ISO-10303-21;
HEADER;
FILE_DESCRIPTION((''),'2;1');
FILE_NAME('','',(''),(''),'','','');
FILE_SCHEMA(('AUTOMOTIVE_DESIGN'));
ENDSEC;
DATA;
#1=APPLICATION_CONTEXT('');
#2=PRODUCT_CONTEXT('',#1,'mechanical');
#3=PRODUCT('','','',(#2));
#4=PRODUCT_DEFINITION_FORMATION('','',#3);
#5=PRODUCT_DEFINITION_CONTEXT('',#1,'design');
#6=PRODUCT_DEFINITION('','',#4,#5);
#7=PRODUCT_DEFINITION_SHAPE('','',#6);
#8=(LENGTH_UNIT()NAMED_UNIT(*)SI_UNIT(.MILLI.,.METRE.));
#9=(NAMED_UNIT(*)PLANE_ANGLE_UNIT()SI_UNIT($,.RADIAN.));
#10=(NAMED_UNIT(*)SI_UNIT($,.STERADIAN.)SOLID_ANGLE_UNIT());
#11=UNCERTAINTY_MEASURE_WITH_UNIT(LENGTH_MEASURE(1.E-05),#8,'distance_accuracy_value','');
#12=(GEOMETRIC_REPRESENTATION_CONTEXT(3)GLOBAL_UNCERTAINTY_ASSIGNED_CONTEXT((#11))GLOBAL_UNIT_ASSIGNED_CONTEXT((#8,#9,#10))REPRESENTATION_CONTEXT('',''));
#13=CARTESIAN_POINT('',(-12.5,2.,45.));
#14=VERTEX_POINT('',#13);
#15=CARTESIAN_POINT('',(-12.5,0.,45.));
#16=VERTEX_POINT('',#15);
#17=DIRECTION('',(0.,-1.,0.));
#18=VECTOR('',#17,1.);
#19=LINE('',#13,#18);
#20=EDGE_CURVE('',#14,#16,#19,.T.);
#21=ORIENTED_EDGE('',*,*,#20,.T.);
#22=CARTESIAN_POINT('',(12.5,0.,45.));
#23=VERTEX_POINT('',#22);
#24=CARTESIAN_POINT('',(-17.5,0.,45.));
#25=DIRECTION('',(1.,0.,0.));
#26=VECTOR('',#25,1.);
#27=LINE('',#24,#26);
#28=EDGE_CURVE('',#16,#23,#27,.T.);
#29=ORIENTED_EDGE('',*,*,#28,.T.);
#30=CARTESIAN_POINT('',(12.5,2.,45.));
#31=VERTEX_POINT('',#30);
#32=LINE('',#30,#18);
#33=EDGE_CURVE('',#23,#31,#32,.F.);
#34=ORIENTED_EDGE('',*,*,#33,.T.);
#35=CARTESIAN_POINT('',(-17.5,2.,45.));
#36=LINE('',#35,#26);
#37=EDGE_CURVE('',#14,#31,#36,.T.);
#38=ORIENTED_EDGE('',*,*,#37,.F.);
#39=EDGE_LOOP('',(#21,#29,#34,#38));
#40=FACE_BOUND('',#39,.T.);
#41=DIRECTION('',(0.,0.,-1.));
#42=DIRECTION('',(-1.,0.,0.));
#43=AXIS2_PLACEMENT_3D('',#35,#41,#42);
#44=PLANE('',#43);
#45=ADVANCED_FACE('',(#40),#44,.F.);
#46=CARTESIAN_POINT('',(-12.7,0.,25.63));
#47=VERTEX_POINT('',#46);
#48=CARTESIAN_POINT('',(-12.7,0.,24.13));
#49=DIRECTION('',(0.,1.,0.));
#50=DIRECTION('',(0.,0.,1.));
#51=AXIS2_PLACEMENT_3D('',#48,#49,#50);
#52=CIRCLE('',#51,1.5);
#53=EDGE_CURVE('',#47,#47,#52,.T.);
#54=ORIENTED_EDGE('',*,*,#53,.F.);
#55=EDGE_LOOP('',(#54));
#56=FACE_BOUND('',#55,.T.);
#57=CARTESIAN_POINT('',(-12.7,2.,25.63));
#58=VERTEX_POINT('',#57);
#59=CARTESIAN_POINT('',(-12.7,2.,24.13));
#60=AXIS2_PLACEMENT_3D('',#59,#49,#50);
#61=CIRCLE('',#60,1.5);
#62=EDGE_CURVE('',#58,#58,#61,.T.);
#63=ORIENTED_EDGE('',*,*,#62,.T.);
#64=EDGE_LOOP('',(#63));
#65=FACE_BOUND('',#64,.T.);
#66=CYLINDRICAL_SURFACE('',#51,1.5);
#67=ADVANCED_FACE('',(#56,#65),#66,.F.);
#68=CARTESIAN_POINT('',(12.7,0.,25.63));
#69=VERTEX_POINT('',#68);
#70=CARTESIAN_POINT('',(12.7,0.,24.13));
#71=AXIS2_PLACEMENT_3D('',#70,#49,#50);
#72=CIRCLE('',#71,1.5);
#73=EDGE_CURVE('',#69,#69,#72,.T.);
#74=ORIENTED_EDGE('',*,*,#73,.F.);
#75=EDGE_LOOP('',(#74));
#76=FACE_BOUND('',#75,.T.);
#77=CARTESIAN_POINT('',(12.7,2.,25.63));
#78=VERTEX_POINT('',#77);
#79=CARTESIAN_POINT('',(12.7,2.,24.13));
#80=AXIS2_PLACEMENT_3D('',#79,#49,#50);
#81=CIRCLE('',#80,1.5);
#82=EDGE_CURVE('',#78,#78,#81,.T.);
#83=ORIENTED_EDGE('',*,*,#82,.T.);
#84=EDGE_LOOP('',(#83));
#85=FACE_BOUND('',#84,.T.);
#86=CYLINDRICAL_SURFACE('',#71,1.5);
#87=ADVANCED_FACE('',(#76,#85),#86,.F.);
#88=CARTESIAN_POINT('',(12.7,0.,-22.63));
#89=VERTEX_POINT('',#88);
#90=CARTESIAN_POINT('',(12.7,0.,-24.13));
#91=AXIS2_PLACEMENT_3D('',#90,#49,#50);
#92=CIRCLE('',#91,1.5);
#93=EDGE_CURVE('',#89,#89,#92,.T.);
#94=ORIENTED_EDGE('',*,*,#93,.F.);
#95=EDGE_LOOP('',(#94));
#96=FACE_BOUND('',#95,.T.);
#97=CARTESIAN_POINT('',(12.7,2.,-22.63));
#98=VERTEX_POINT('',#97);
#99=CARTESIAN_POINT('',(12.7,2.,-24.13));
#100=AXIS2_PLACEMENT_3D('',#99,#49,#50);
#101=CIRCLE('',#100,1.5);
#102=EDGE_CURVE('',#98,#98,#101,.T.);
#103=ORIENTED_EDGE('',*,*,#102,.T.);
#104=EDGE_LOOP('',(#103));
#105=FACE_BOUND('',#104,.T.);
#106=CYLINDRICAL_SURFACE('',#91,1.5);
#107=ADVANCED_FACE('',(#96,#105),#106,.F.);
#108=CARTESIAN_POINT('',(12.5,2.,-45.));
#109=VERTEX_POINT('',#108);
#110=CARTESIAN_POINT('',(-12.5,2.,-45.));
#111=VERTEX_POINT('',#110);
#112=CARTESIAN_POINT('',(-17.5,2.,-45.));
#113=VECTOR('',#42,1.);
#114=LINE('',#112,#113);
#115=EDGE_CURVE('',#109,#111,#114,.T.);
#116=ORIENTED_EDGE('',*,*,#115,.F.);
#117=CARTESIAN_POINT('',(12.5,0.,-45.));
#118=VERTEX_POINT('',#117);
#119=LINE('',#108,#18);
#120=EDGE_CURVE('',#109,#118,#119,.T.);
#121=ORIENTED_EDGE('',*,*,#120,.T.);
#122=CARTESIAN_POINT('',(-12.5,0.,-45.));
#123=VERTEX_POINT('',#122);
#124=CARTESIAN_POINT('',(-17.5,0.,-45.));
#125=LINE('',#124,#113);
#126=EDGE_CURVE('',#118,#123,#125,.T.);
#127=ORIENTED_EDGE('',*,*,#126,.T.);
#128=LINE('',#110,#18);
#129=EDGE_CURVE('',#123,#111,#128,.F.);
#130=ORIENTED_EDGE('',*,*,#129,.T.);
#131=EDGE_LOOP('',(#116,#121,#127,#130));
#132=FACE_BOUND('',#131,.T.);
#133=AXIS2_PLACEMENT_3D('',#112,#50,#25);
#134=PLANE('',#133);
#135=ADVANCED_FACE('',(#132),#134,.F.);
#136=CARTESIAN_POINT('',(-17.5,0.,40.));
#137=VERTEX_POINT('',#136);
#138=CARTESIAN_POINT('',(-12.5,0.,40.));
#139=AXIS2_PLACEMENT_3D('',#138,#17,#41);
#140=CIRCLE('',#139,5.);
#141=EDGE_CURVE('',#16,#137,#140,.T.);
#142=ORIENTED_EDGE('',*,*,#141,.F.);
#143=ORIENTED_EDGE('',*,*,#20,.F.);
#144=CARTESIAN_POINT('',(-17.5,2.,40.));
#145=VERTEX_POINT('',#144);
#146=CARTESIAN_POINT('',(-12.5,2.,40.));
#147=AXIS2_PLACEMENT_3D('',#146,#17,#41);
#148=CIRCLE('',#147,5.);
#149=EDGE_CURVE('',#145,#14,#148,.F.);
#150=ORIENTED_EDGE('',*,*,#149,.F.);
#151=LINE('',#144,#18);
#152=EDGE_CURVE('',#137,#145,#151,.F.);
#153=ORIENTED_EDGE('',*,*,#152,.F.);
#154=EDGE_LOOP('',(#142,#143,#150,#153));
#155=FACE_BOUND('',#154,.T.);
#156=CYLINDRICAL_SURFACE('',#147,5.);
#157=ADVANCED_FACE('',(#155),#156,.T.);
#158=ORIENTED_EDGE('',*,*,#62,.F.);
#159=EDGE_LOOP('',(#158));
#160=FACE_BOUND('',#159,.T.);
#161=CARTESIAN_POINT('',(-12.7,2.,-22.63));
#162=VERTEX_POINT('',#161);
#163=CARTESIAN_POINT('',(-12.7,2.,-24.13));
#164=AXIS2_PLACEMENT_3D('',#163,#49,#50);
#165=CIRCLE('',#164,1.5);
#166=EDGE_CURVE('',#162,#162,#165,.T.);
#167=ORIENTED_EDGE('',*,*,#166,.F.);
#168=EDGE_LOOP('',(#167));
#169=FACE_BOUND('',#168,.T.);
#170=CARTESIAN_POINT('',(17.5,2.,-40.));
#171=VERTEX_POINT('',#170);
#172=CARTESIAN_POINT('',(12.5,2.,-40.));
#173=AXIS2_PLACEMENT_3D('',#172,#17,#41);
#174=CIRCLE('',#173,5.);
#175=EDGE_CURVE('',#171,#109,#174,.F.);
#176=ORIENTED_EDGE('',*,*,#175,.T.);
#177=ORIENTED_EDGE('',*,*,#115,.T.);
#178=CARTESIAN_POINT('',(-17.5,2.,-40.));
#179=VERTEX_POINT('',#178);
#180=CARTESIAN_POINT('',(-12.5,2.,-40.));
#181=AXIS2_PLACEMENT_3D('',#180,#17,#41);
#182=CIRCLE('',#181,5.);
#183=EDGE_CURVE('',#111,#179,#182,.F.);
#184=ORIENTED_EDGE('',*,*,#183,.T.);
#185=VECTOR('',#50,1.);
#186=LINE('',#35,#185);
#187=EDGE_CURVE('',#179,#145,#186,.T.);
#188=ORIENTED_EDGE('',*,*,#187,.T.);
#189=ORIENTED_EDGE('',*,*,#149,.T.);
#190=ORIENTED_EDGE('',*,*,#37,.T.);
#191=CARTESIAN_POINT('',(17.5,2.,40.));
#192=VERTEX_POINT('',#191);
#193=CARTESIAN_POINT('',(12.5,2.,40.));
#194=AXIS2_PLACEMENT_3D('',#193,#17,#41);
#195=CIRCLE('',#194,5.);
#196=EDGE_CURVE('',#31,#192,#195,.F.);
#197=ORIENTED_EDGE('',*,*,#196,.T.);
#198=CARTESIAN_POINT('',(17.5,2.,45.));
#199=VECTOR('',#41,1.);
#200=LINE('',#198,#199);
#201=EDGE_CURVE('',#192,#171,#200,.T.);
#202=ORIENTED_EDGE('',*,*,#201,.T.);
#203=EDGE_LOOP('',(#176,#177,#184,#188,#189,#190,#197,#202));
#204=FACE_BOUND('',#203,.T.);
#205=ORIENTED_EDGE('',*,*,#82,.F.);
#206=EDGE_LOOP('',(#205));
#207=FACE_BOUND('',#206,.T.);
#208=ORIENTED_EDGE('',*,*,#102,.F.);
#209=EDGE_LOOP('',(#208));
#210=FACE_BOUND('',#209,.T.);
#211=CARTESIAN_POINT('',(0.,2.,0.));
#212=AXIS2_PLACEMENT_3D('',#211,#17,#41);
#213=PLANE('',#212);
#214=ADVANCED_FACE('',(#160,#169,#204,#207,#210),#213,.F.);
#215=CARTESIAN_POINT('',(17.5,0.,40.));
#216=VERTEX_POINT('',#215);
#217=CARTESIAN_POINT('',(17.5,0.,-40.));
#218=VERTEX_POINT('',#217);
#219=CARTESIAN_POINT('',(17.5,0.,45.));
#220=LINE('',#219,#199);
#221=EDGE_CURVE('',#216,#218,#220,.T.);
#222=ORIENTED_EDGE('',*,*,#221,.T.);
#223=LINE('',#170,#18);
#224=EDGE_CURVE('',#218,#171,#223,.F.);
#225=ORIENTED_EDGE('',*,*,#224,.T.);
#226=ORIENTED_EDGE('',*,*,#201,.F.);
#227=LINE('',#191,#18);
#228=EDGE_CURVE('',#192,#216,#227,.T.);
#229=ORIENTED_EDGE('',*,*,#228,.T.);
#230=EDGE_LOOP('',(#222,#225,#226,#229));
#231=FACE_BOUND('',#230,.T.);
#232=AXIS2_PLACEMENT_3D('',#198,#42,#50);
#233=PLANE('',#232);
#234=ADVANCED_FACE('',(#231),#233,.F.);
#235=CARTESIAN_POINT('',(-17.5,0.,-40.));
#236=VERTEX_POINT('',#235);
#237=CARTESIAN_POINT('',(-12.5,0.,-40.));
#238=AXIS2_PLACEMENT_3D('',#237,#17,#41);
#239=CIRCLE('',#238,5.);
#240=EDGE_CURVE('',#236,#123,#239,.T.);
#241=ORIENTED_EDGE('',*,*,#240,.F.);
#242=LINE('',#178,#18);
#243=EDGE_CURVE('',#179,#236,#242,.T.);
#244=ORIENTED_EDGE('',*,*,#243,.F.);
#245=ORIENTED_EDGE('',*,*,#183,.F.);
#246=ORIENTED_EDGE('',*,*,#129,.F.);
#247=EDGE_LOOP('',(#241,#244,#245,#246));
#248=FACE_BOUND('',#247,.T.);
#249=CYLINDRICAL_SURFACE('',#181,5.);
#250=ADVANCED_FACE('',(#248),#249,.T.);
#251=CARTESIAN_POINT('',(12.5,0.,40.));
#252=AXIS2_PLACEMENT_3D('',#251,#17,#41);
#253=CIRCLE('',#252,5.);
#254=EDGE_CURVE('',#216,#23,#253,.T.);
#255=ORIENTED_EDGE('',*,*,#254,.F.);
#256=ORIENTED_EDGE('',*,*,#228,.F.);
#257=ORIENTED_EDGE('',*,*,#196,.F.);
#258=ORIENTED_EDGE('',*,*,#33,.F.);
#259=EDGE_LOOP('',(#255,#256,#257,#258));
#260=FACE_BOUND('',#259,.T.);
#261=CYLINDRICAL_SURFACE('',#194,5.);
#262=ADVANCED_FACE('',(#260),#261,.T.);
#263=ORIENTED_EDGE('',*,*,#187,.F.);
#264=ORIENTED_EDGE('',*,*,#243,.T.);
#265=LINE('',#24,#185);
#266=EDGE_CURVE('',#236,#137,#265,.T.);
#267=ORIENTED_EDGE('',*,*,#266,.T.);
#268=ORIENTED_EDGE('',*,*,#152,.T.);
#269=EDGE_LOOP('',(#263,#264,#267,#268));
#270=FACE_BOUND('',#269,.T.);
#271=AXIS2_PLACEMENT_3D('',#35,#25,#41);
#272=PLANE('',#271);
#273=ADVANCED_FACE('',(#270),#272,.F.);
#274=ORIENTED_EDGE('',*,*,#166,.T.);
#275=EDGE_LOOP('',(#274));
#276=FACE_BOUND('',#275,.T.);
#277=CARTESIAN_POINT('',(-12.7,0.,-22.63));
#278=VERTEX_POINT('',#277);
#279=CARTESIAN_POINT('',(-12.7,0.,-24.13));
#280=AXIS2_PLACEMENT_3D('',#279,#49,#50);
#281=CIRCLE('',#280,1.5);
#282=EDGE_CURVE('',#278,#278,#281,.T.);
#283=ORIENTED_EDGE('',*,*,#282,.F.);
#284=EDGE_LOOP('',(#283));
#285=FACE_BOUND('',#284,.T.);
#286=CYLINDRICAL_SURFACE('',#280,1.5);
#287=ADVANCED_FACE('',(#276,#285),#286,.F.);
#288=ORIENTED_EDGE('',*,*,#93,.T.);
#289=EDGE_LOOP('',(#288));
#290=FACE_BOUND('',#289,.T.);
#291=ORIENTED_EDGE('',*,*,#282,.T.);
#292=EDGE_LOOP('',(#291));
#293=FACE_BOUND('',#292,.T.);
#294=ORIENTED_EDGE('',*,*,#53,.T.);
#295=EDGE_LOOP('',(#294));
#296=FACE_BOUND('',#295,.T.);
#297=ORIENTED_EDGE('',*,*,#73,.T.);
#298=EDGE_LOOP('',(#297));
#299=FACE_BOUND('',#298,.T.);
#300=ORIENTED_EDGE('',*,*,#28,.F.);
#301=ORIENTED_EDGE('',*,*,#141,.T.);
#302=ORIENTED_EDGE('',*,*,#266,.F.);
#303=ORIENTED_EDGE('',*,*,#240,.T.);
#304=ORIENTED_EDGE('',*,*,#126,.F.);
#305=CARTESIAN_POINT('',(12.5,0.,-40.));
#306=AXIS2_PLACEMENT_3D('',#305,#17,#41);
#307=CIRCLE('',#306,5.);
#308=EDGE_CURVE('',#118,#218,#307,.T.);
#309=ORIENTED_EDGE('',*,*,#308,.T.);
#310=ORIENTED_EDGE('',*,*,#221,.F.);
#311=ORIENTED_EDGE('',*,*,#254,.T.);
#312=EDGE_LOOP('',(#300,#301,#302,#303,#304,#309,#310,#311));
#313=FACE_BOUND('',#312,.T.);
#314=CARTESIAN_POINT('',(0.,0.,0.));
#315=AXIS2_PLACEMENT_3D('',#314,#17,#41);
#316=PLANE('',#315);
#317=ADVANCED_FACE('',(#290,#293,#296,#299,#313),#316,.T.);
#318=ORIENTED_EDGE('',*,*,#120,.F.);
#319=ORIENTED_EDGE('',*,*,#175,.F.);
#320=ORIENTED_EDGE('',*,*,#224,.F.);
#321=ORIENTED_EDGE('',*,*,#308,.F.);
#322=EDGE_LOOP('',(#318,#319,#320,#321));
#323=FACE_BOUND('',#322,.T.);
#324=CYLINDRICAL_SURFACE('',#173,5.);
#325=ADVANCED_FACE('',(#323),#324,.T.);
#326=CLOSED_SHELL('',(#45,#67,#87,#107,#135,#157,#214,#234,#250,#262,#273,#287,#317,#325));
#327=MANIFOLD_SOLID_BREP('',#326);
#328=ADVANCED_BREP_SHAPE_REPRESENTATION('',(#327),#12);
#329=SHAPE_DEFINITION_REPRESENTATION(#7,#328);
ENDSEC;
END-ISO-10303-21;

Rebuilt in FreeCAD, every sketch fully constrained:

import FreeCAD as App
import Part
import Sketcher
from FreeCAD import Vector
Q = App.Units.Quantity


def edges_at(feature, points):
    """Names of the edges that pass closest to the given points."""
    edges = feature.Shape.Edges
    near = lambda p: min(range(len(edges)), key=lambda i: edges[i].distToShape(Part.Vertex(*p))[0])
    return sorted({f"Edge{near(p) + 1}" for p in points})

doc = App.newDocument("Part")
params = doc.addObject("Spreadsheet::Sheet", "Params")
for row, (alias, value) in enumerate([
    ("sketch1_width", "35 mm"),
    ("sketch1_height", "90 mm"),
    ("pad1_length", "2 mm"),
    ("sketch2_diameter", "3 mm"),
    ("fillet_radius", "5 mm"),
], start=1):
    params.set(f"A{row}", alias)
    params.set(f"B{row}", "=" + value)
    params.setAlias(f"B{row}", alias)

body = doc.addObject("PartDesign::Body", "Body")

# Sketch on XZ plane
sketch1 = body.newObject("Sketcher::SketchObject", "Sketch")
sketch1.AttachmentSupport = (doc.getObject("XZ_Plane"), [""])
sketch1.MapMode = "FlatFace"
sketch1.addGeometry(Part.LineSegment(Vector(-18, -45, 0), Vector(-18, 45, 0)), False)
sketch1.addGeometry(Part.LineSegment(Vector(-18, 45, 0), Vector(18, 45, 0)), False)
sketch1.addGeometry(Part.LineSegment(Vector(18, 45, 0), Vector(18, -45, 0)), False)
sketch1.addGeometry(Part.LineSegment(Vector(18, -45, 0), Vector(-18, -45, 0)), False)
sketch1.addConstraint(Sketcher.Constraint("Coincident", 0, 2, 1, 1))
sketch1.addConstraint(Sketcher.Constraint("Coincident", 1, 2, 2, 1))
sketch1.addConstraint(Sketcher.Constraint("Coincident", 2, 2, 3, 1))
sketch1.addConstraint(Sketcher.Constraint("Coincident", 3, 2, 0, 1))
sketch1.addConstraint(Sketcher.Constraint("Vertical", 0))
sketch1.addConstraint(Sketcher.Constraint("Horizontal", 1))
sketch1.addConstraint(Sketcher.Constraint("Vertical", 2))
sketch1.addConstraint(Sketcher.Constraint("Horizontal", 3))
sketch1.addConstraint(Sketcher.Constraint("Symmetric", 0, 2, 2, 2, -1, 1))
sketch1.addConstraint(Sketcher.Constraint("DistanceX", 1, 1, 1, 2, Q("35 mm")))
sketch1.addConstraint(Sketcher.Constraint("DistanceY", 0, 1, 0, 2, Q("90 mm")))
sketch1.setExpression("Constraints[9]", "Params.sketch1_width")
sketch1.setExpression("Constraints[10]", "Params.sketch1_height")
pad1 = body.newObject("PartDesign::Pad", "Pad")
pad1.Profile = sketch1
pad1.setExpression("Length", "Params.pad1_length")
pad1.Reversed = True

# Sketch on XZ plane
sketch2 = body.newObject("Sketcher::SketchObject", "Sketch001")
sketch2.AttachmentSupport = (doc.getObject("XZ_Plane"), [""])
sketch2.MapMode = "FlatFace"
sketch2.AttachmentOffset = App.Placement(Vector(0, 0, -2), App.Rotation())
sketch2.addGeometry(Part.Circle(Vector(-12.7, -24.1, 0), Vector(0, 0, 1), 1.5), False)
sketch2.addGeometry(Part.Circle(Vector(12.7, -24.1, 0), Vector(0, 0, 1), 1.5), False)
sketch2.addGeometry(Part.Circle(Vector(12.7, 24.1, 0), Vector(0, 0, 1), 1.5), False)
sketch2.addGeometry(Part.Circle(Vector(-12.7, 24.1, 0), Vector(0, 0, 1), 1.5), False)
sketch2.addConstraint(Sketcher.Constraint("Equal", 0, 1))
sketch2.addConstraint(Sketcher.Constraint("Equal", 1, 2))
sketch2.addConstraint(Sketcher.Constraint("Equal", 2, 3))
sketch2.addConstraint(Sketcher.Constraint("Symmetric", 0, 3, 2, 3, -1, 1))
sketch2.addConstraint(Sketcher.Constraint("Symmetric", 1, 3, 3, 3, -1, 1))
sketch2.addConstraint(Sketcher.Constraint("Symmetric", 0, 3, 1, 3, -2))
sketch2.addConstraint(Sketcher.Constraint("Diameter", 0, Q("3 mm")))
sketch2.addConstraint(Sketcher.Constraint("DistanceX", 0, 3, -1, 1, Q("12.7 mm")))
sketch2.addConstraint(Sketcher.Constraint("DistanceY", 0, 3, -1, 1, Q("24.13 mm")))
sketch2.setExpression("Constraints[6]", "Params.sketch2_diameter")
pocket1 = body.newObject("PartDesign::Pocket", "Pocket")
pocket1.Profile = sketch2
pocket1.Type = "ThroughAll"
pocket1.Reversed = True
doc.recompute()

fillet = body.newObject("PartDesign::Fillet", "Fillet")
fillet.Base = (pocket1, edges_at(pocket1, [
    (17.5, 1, 45),
    (-17.5, 1, 45),
    (-17.5, 1, -45),
    (17.5, 1, -45),
]))
fillet.setExpression("Radius", "Params.fillet_radius")

doc.recompute()
